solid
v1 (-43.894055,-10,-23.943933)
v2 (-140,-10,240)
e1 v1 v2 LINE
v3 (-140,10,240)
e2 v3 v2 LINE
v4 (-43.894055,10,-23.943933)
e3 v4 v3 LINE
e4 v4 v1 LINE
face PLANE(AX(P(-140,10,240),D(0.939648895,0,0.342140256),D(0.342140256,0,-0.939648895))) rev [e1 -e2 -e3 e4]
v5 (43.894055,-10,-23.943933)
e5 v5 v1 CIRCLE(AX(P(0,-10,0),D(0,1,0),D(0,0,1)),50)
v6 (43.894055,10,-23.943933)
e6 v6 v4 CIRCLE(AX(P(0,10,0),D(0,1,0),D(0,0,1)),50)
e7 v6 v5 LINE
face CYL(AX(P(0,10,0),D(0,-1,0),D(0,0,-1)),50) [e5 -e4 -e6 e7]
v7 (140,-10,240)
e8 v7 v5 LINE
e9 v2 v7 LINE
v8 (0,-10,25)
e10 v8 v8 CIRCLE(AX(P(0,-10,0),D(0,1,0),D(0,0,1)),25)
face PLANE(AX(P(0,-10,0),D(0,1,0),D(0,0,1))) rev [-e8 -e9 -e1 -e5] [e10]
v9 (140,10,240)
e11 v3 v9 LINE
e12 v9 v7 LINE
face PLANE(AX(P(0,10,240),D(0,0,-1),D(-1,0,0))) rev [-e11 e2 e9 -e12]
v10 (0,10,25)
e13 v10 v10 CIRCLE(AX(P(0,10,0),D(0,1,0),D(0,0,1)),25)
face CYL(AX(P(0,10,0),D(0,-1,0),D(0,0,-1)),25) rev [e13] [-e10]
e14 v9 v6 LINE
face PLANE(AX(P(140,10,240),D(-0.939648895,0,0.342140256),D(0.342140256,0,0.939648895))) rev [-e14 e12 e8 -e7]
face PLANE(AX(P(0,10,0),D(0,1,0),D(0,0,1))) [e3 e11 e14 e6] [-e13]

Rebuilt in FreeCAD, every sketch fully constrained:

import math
import FreeCAD as App
import Part
import Sketcher
from FreeCAD import Vector

doc = App.newDocument("Part")
body = doc.addObject("PartDesign::Body", "Body")

# Sketch on XZ plane
sketch1 = body.newObject("Sketcher::SketchObject", "Sketch")
sketch1.AttachmentSupport = (doc.getObject("XZ_Plane"), [""])
sketch1.MapMode = "FlatFace"
sketch1.addGeometry(Part.LineSegment(Vector(140, 240, 0), Vector(44, -24, 0)), False)
sketch1.addGeometry(Part.ArcOfCircle(Part.Circle(Vector(0, 0, 0), Vector(0, 0, 1), 50), math.radians(-151), math.radians(-29)), False)
sketch1.addGeometry(Part.LineSegment(Vector(-44, -24, 0), Vector(-140, 240, 0)), False)
sketch1.addGeometry(Part.LineSegment(Vector(-140, 240, 0), Vector(140, 240, 0)), False)
sketch1.addGeometry(Part.Circle(Vector(0, 0, 0), Vector(0, 0, 1), 25), False)
sketch1.addConstraint(Sketcher.Constraint("Coincident", 0, 2, 1, 2))
sketch1.addConstraint(Sketcher.Constraint("Coincident", 1, 1, 2, 1))
sketch1.addConstraint(Sketcher.Constraint("Coincident", 2, 2, 3, 1))
sketch1.addConstraint(Sketcher.Constraint("Coincident", 3, 2, 0, 1))
sketch1.addConstraint(Sketcher.Constraint("Horizontal", 3))
sketch1.addConstraint(Sketcher.Constraint("Coincident", 1, 3, -1, 1))
sketch1.addConstraint(Sketcher.Constraint("Coincident", 4, 3, -1, 1))
sketch1.addConstraint(Sketcher.Constraint("Horizontal", 0, 2, 1, 1))
sketch1.addConstraint(Sketcher.Constraint("Equal", 0, 2))
sketch1.addConstraint(Sketcher.Constraint("Diameter", 4, 50.0))
sketch1.addConstraint(Sketcher.Constraint("Radius", 1, 50.0))
sketch1.addConstraint(Sketcher.Constraint("DistanceX", 3, 1, 3, 2, 280.0))
sketch1.addConstraint(Sketcher.Constraint("DistanceY", -1, 1, 2, 2, 240.0))
sketch1.addConstraint(Sketcher.Constraint("DistanceX", 1, 1, 0, 2, 87.78811))
pad1 = body.newObject("PartDesign::Pad", "Pad")
pad1.Profile = sketch1
pad1.Length = 20
pad1.Midplane = True

doc.recompute()
